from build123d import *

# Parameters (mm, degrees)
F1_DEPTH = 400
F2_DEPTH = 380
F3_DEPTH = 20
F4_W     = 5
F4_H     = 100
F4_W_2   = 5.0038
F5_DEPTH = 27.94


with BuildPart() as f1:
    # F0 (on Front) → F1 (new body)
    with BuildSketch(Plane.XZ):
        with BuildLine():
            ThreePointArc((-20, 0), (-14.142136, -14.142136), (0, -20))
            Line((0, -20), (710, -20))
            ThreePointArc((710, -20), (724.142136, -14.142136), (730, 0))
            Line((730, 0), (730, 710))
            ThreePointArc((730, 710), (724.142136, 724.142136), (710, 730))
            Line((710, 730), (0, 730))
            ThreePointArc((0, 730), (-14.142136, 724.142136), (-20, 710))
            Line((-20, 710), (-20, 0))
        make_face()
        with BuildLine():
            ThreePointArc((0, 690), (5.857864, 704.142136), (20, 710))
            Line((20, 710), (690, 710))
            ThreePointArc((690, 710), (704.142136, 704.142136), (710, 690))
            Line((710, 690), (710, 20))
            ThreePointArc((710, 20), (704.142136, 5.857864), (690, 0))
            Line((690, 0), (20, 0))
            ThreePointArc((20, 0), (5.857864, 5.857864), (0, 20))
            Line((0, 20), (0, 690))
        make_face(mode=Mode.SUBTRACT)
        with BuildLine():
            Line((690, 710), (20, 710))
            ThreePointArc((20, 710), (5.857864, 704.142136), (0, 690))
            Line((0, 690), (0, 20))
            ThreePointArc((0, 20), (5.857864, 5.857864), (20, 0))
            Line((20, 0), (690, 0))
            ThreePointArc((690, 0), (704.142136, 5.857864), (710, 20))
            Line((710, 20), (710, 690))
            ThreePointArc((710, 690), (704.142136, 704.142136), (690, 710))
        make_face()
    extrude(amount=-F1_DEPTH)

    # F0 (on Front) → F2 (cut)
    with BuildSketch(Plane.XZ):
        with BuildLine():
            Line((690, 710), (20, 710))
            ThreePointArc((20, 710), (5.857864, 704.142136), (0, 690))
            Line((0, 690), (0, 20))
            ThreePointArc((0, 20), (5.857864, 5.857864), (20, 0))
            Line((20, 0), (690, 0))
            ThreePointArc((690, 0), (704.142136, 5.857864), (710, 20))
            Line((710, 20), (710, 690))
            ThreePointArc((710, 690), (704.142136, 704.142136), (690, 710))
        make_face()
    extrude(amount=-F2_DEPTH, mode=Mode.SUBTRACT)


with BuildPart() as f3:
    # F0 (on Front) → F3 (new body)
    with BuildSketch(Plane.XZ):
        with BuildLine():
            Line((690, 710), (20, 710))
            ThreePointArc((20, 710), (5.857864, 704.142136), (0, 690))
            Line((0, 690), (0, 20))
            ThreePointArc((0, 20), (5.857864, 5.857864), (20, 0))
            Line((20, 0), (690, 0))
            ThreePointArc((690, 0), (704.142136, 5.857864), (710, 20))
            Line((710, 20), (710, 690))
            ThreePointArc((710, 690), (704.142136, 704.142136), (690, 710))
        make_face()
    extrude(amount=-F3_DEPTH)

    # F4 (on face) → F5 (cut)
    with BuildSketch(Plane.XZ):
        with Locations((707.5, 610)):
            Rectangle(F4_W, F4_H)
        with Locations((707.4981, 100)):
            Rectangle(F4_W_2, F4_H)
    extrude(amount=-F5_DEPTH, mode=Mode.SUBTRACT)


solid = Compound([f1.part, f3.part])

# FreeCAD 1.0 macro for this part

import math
import FreeCAD as App
import Part
import Sketcher


def add_polygon(sketch, points):
    """Adds a closed chain of lines whose ends are joined by coincident constraints."""
    first, n = sketch.GeometryCount, len(points)
    for a, b in zip(points, points[1:] + points[:1]):
        sketch.addGeometry(Part.LineSegment(App.Vector(*a, 0), App.Vector(*b, 0)), False)
    for i in range(n):
        sketch.addConstraint(Sketcher.Constraint("Coincident", first + i, 2, first + (i + 1) % n, 1))

doc = App.newDocument("Part")
body = doc.addObject("PartDesign::Body", "Body")

# Sketch on XZ plane
sketch1 = body.newObject("Sketcher::SketchObject", "Sketch")
sketch1.AttachmentSupport = (doc.getObject("XZ_Plane"), [""])
sketch1.MapMode = "FlatFace"
sketch1.addGeometry([
    Part.ArcOfCircle(Part.Circle(App.Vector(-0.000001, -0.000001, 0), App.Vector(0, 0, 1), 19.999999), math.radians(179.999996), math.radians(270.000004)),  # 0
    Part.LineSegment(App.Vector(0, -20, 0), App.Vector(710, -20, 0)),  # 1
    Part.ArcOfCircle(Part.Circle(App.Vector(710.000001, -0.000001, 0), App.Vector(0, 0, 1), 19.999999), math.radians(-90.000004), math.radians(0.000004)),  # 2
    Part.LineSegment(App.Vector(730, 0, 0), App.Vector(730, 710, 0)),  # 3
    Part.ArcOfCircle(Part.Circle(App.Vector(710.000001, 710.000001, 0), App.Vector(0, 0, 1), 19.999999), math.radians(-0.000004), math.radians(90.000004)),  # 4
    Part.LineSegment(App.Vector(710, 730, 0), App.Vector(0, 730, 0)),  # 5
    Part.ArcOfCircle(Part.Circle(App.Vector(-0.000001, 710.000001, 0), App.Vector(0, 0, 1), 19.999999), math.radians(89.999996), math.radians(180.000004)),  # 6
    Part.LineSegment(App.Vector(-20, 710, 0), App.Vector(-20, 0, 0)),  # 7
], False)
sketch1.addConstraint([
    Sketcher.Constraint("Tangent", 0, 2, 1, 1),
    Sketcher.Constraint("Tangent", 1, 2, 2, 1),
    Sketcher.Constraint("Tangent", 2, 2, 3, 1),
    Sketcher.Constraint("Tangent", 3, 2, 4, 1),
    Sketcher.Constraint("Tangent", 4, 2, 5, 1),
    Sketcher.Constraint("Tangent", 5, 2, 6, 1),
    Sketcher.Constraint("Tangent", 6, 2, 7, 1),
    Sketcher.Constraint("Tangent", 7, 2, 0, 1),
    Sketcher.Constraint("Horizontal", 1),
    Sketcher.Constraint("Vertical", 3),
    Sketcher.Constraint("Horizontal", 5),
    Sketcher.Constraint("Vertical", 7),
    Sketcher.Constraint("Coincident", 0, 3, -1, 1),
    Sketcher.Constraint("Equal", 0, 2),
    Sketcher.Constraint("Equal", 2, 4),
    Sketcher.Constraint("Equal", 4, 6),
    Sketcher.Constraint("Equal", 5, 3),
    Sketcher.Constraint("Radius", 0, 19.999999),
    Sketcher.Constraint("DistanceX", 1, 1, 1, 2, 710.0),
])
pad1 = body.newObject("PartDesign::Pad", "Pad")
pad1.Profile = sketch1
pad1.Length = 400
pad1.Reversed = True

# Sketch on XZ plane
sketch2 = body.newObject("Sketcher::SketchObject", "Sketch001")
sketch2.AttachmentSupport = (doc.getObject("XZ_Plane"), [""])
sketch2.MapMode = "FlatFace"
sketch2.addGeometry([
    Part.LineSegment(App.Vector(690, 710, 0), App.Vector(20, 710, 0)),  # 0
    Part.ArcOfCircle(Part.Circle(App.Vector(19.999999, 690.000001, 0), App.Vector(0, 0, 1), 19.999999), math.radians(89.999996), math.radians(180.000004)),  # 1
    Part.LineSegment(App.Vector(0, 690, 0), App.Vector(0, 20, 0)),  # 2
    Part.ArcOfCircle(Part.Circle(App.Vector(19.999999, 19.999999, 0), App.Vector(0, 0, 1), 19.999999), math.radians(179.999996), math.radians(270.000004)),  # 3
    Part.LineSegment(App.Vector(20, 0, 0), App.Vector(690, 0, 0)),  # 4
    Part.ArcOfCircle(Part.Circle(App.Vector(690.000001, 19.999999, 0), App.Vector(0, 0, 1), 19.999999), math.radians(-90.000004), math.radians(0.000004)),  # 5
    Part.LineSegment(App.Vector(710, 20, 0), App.Vector(710, 690, 0)),  # 6
    Part.ArcOfCircle(Part.Circle(App.Vector(690.000001, 690.000001, 0), App.Vector(0, 0, 1), 19.999999), math.radians(-0.000004), math.radians(90.000004)),  # 7
], False)
sketch2.addConstraint([
    Sketcher.Constraint("Tangent", 0, 2, 1, 1),
    Sketcher.Constraint("Tangent", 1, 2, 2, 1),
    Sketcher.Constraint("Tangent", 2, 2, 3, 1),
    Sketcher.Constraint("Tangent", 3, 2, 4, 1),
    Sketcher.Constraint("Tangent", 4, 2, 5, 1),
    Sketcher.Constraint("Tangent", 5, 2, 6, 1),
    Sketcher.Constraint("Tangent", 6, 2, 7, 1),
    Sketcher.Constraint("Tangent", 7, 2, 0, 1),
    Sketcher.Constraint("Horizontal", 0),
    Sketcher.Constraint("Vertical", 2),
    Sketcher.Constraint("Horizontal", 4),
    Sketcher.Constraint("Vertical", 6),
    Sketcher.Constraint("Equal", 1, 3),
    Sketcher.Constraint("Equal", 3, 5),
    Sketcher.Constraint("Equal", 5, 7),
    Sketcher.Constraint("PointOnObject", 1, 2, -2),
    Sketcher.Constraint("PointOnObject", 3, 2, -1),
    Sketcher.Constraint("Equal", 4, 2),
    Sketcher.Constraint("Radius", 1, 19.999999),
    Sketcher.Constraint("DistanceX", 0, 2, 0, 1, 670.0),
])
pocket1 = body.newObject("PartDesign::Pocket", "Pocket")
pocket1.Profile = sketch2
pocket1.Length = 380
body2 = doc.addObject("PartDesign::Body", "Body001")

# Sketch on XZ plane
sketch3 = body2.newObject("Sketcher::SketchObject", "Sketch002")
sketch3.AttachmentSupport = (doc.getObject("XZ_Plane001"), [""])
sketch3.MapMode = "FlatFace"
sketch3.addGeometry([
    Part.LineSegment(App.Vector(690, 710, 0), App.Vector(20, 710, 0)),  # 0
    Part.ArcOfCircle(Part.Circle(App.Vector(19.999999, 690.000001, 0), App.Vector(0, 0, 1), 19.999999), math.radians(89.999996), math.radians(180.000004)),  # 1
    Part.LineSegment(App.Vector(0, 690, 0), App.Vector(0, 20, 0)),  # 2
    Part.ArcOfCircle(Part.Circle(App.Vector(19.999999, 19.999999, 0), App.Vector(0, 0, 1), 19.999999), math.radians(179.999996), math.radians(270.000004)),  # 3
    Part.LineSegment(App.Vector(20, 0, 0), App.Vector(690, 0, 0)),  # 4
    Part.ArcOfCircle(Part.Circle(App.Vector(690.000001, 19.999999, 0), App.Vector(0, 0, 1), 19.999999), math.radians(-90.000004), math.radians(0.000004)),  # 5
    Part.LineSegment(App.Vector(710, 20, 0), App.Vector(710, 690, 0)),  # 6
    Part.ArcOfCircle(Part.Circle(App.Vector(690.000001, 690.000001, 0), App.Vector(0, 0, 1), 19.999999), math.radians(-0.000004), math.radians(90.000004)),  # 7
], False)
sketch3.addConstraint([
    Sketcher.Constraint("Tangent", 0, 2, 1, 1),
    Sketcher.Constraint("Tangent", 1, 2, 2, 1),
    Sketcher.Constraint("Tangent", 2, 2, 3, 1),
    Sketcher.Constraint("Tangent", 3, 2, 4, 1),
    Sketcher.Constraint("Tangent", 4, 2, 5, 1),
    Sketcher.Constraint("Tangent", 5, 2, 6, 1),
    Sketcher.Constraint("Tangent", 6, 2, 7, 1),
    Sketcher.Constraint("Tangent", 7, 2, 0, 1),
    Sketcher.Constraint("Horizontal", 0),
    Sketcher.Constraint("Vertical", 2),
    Sketcher.Constraint("Horizontal", 4),
    Sketcher.Constraint("Vertical", 6),
    Sketcher.Constraint("Equal", 1, 3),
    Sketcher.Constraint("Equal", 3, 5),
    Sketcher.Constraint("Equal", 5, 7),
    Sketcher.Constraint("PointOnObject", 1, 2, -2),
    Sketcher.Constraint("PointOnObject", 3, 2, -1),
    Sketcher.Constraint("Equal", 4, 2),
    Sketcher.Constraint("Radius", 1, 19.999999),
    Sketcher.Constraint("DistanceX", 0, 2, 0, 1, 670.0),
])
pad2 = body2.newObject("PartDesign::Pad", "Pad001")
pad2.Profile = sketch3
pad2.Length = 20
pad2.Reversed = True

# Sketch on XZ plane
sketch4 = body2.newObject("Sketcher::SketchObject", "Sketch003")
sketch4.AttachmentSupport = (doc.getObject("XZ_Plane001"), [""])
sketch4.MapMode = "FlatFace"
add_polygon(sketch4, [(705, 660), (705, 560), (710, 560), (710, 660)])  # lines 0-3
add_polygon(sketch4, [(704.9962, 150), (704.9962, 50), (710, 50), (710, 150)])  # lines 4-7
sketch4.addConstraint([
    Sketcher.Constraint("Vertical", 0),
    Sketcher.Constraint("Horizontal", 1),
    Sketcher.Constraint("Vertical", 2),
    Sketcher.Constraint("Horizontal", 3),
    Sketcher.Constraint("Vertical", 4),
    Sketcher.Constraint("Horizontal", 5),
    Sketcher.Constraint("Vertical", 6),
    Sketcher.Constraint("Horizontal", 7),
    Sketcher.Constraint("Vertical", 2, 2, 5, 2),
    Sketcher.Constraint("Equal", 2, 4),
    Sketcher.Constraint("DistanceX", 1, 1, 1, 2, 5.0),
    Sketcher.Constraint("DistanceY", 0, 2, 0, 1, 100.0),
    Sketcher.Constraint("DistanceX", -1, 1, 0, 2, 705.0),
    Sketcher.Constraint("DistanceY", -1, 1, 0, 2, 560.0),
    Sketcher.Constraint("DistanceY", -1, 1, 4, 2, 50.0),
    Sketcher.Constraint("DistanceX", 5, 1, 5, 2, 5.0038),
])
pocket2 = body2.newObject("PartDesign::Pocket", "Pocket001")
pocket2.Profile = sketch4
pocket2.Length = 27.94

doc.recompute()
